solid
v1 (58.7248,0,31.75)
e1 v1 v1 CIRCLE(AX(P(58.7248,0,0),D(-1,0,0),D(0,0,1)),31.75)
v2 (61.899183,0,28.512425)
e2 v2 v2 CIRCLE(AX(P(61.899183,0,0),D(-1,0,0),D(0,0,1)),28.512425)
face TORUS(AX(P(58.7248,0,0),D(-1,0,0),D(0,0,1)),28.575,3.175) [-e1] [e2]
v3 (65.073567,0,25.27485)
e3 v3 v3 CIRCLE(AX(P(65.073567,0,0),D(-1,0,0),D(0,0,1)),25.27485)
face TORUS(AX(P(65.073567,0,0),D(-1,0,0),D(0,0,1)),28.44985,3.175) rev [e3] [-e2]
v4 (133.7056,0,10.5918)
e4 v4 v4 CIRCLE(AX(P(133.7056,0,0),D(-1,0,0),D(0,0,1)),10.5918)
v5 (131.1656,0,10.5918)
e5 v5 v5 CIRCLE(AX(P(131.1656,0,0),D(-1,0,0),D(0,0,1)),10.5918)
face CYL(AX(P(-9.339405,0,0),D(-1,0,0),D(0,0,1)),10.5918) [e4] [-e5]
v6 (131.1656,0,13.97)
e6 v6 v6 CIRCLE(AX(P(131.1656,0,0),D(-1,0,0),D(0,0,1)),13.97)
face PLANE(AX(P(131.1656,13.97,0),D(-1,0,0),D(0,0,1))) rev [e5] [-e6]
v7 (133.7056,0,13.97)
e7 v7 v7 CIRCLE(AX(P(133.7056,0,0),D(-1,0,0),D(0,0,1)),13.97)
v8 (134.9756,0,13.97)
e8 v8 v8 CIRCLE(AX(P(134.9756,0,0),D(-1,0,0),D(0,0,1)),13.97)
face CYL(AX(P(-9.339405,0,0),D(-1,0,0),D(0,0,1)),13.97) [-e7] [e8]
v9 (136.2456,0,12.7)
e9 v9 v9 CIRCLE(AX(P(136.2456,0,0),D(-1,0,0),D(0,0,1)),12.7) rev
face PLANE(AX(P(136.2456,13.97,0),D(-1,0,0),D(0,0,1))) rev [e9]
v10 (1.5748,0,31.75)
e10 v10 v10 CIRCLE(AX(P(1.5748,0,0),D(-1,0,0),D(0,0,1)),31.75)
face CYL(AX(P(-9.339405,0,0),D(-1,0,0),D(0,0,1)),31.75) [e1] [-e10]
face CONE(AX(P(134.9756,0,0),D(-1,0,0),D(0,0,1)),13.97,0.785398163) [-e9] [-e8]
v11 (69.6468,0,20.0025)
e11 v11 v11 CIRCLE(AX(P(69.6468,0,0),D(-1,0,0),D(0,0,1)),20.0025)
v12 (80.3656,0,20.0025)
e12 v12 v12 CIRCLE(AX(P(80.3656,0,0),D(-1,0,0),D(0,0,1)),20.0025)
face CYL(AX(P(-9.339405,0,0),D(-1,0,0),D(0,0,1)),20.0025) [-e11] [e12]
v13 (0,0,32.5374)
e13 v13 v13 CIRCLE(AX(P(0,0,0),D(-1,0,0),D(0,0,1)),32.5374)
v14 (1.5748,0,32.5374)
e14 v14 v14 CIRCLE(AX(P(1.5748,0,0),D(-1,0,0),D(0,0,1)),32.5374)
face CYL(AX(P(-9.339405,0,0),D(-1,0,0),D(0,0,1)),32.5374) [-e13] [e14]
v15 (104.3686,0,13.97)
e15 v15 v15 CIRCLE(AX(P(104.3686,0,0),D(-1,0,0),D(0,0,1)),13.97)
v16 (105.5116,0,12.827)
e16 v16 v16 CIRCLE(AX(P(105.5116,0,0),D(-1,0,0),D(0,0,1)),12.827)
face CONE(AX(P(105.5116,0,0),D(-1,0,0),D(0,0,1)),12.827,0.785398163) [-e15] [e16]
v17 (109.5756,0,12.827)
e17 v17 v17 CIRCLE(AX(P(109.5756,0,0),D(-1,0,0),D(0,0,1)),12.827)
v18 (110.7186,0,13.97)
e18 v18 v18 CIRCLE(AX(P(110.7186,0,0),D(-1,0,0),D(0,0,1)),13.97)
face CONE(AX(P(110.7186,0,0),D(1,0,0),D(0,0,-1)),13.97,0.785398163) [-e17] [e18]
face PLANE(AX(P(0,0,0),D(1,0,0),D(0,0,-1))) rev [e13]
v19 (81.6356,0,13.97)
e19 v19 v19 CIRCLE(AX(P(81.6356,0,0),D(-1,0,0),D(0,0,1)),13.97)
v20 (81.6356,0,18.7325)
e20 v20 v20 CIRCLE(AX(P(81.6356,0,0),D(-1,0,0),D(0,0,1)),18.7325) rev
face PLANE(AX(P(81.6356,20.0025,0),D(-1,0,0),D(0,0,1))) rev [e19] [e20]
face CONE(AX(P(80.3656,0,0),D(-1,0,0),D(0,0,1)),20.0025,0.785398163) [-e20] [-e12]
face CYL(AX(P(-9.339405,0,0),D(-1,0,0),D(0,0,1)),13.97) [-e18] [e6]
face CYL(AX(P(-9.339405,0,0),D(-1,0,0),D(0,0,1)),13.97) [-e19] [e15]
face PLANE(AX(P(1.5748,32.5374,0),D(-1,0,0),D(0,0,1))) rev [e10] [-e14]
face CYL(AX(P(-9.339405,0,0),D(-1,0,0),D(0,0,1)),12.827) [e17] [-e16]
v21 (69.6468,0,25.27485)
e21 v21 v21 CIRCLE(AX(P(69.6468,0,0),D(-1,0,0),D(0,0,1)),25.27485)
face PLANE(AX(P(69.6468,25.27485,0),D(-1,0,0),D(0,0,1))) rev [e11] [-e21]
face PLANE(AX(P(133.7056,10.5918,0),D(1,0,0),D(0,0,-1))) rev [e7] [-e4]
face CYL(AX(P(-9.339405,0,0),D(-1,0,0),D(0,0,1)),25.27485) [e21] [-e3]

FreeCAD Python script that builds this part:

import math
import FreeCAD as App
import Part
import Sketcher
Q = App.Units.Quantity


def edges_at(feature, points):
    """Names of the edges that pass closest to the given points."""
    edges = feature.Shape.Edges
    near = lambda p: min(range(len(edges)), key=lambda i: edges[i].distToShape(Part.Vertex(*p))[0])
    return sorted({f"Edge{near(p) + 1}" for p in points})

doc = App.newDocument("Part")
body = doc.addObject("PartDesign::Body", "Body")

sketch1 = body.newObject("Sketcher::SketchObject", "Sketch")
sketch1.AttachmentSupport = (doc.getObject("XY_Plane"), [""])
sketch1.MapMode = "FlatFace"
sketch1.addGeometry([
    Part.LineSegment(App.Vector(0, 32.5374, 0), App.Vector(0, 0, 0)),
    Part.LineSegment(App.Vector(0, 0, 0), App.Vector(136.2456, 0, 0)),
    Part.LineSegment(App.Vector(136.2456, 0, 0), App.Vector(136.2456, 13.97, 0)),
    Part.LineSegment(App.Vector(136.2456, 13.97, 0), App.Vector(133.7056, 13.97, 0)),
    Part.LineSegment(App.Vector(133.7056, 13.97, 0), App.Vector(133.7056, 10.5918, 0)),
    Part.LineSegment(App.Vector(133.7056, 10.5918, 0), App.Vector(131.1656, 10.5918, 0)),
    Part.LineSegment(App.Vector(131.1656, 10.5918, 0), App.Vector(131.1656, 13.97, 0)),
    Part.LineSegment(App.Vector(131.1656, 13.97, 0), App.Vector(110.7186, 13.97, 0)),
    Part.LineSegment(App.Vector(110.7186, 13.97, 0), App.Vector(109.5756, 12.827, 0)),
    Part.LineSegment(App.Vector(109.5756, 12.827, 0), App.Vector(105.5116, 12.827, 0)),
    Part.LineSegment(App.Vector(105.5116, 12.827, 0), App.Vector(104.3686, 13.97, 0)),
    Part.LineSegment(App.Vector(104.3686, 13.97, 0), App.Vector(81.6356, 13.97, 0)),
    Part.LineSegment(App.Vector(81.6356, 13.97, 0), App.Vector(81.6356, 20.0025, 0)),
    Part.LineSegment(App.Vector(81.6356, 20.0025, 0), App.Vector(69.6468, 20.0025, 0)),
    Part.LineSegment(App.Vector(69.6468, 20.0025, 0), App.Vector(69.6468, 25.27485, 0)),
    Part.LineSegment(App.Vector(69.6468, 25.27485, 0), App.Vector(65.073567, 25.27485, 0)),
    Part.ArcOfCircle(Part.Circle(App.Vector(65.073567, 28.44985, 0), App.Vector(0, 0, 1), 3.175), math.radians(178.870705), math.radians(270)),
    Part.ArcOfCircle(Part.Circle(App.Vector(58.7248, 28.575, 0), App.Vector(0, 0, 1), 3.175), math.radians(-1.129295), math.radians(90)),
    Part.LineSegment(App.Vector(58.7248, 31.75, 0), App.Vector(1.5748, 31.75, 0)),
    Part.LineSegment(App.Vector(1.5748, 31.75, 0), App.Vector(1.5748, 32.5374, 0)),
    Part.LineSegment(App.Vector(1.5748, 32.5374, 0), App.Vector(0, 32.5374, 0)),
], False)
sketch1.addConstraint([
    Sketcher.Constraint("Coincident", 0, 2, 1, 1),
    Sketcher.Constraint("Coincident", 1, 2, 2, 1),
    Sketcher.Constraint("Coincident", 2, 2, 3, 1),
    Sketcher.Constraint("Coincident", 3, 2, 4, 1),
    Sketcher.Constraint("Coincident", 4, 2, 5, 1),
    Sketcher.Constraint("Coincident", 5, 2, 6, 1),
    Sketcher.Constraint("Coincident", 6, 2, 7, 1),
    Sketcher.Constraint("Coincident", 7, 2, 8, 1),
    Sketcher.Constraint("Coincident", 8, 2, 9, 1),
    Sketcher.Constraint("Coincident", 9, 2, 10, 1),
    Sketcher.Constraint("Coincident", 10, 2, 11, 1),
    Sketcher.Constraint("Coincident", 11, 2, 12, 1),
    Sketcher.Constraint("Coincident", 12, 2, 13, 1),
    Sketcher.Constraint("Coincident", 13, 2, 14, 1),
    Sketcher.Constraint("Coincident", 14, 2, 15, 1),
    Sketcher.Constraint("Tangent", 15, 2, 16, 2),
    Sketcher.Constraint("Tangent", 16, 1, 17, 1),
    Sketcher.Constraint("Tangent", 17, 2, 18, 1),
    Sketcher.Constraint("Coincident", 18, 2, 19, 1),
    Sketcher.Constraint("Coincident", 19, 2, 20, 1),
    Sketcher.Constraint("Coincident", 20, 2, 0, 1),
    Sketcher.Constraint("Vertical", 0),
    Sketcher.Constraint("Horizontal", 1),
    Sketcher.Constraint("Vertical", 2),
    Sketcher.Constraint("Horizontal", 3),
    Sketcher.Constraint("Vertical", 4),
    Sketcher.Constraint("Horizontal", 5),
    Sketcher.Constraint("Vertical", 6),
    Sketcher.Constraint("Horizontal", 7),
    Sketcher.Constraint("Horizontal", 9),
    Sketcher.Constraint("Horizontal", 11),
    Sketcher.Constraint("Vertical", 12),
    Sketcher.Constraint("Horizontal", 13),
    Sketcher.Constraint("Vertical", 14),
    Sketcher.Constraint("Horizontal", 15),
    Sketcher.Constraint("Horizontal", 18),
    Sketcher.Constraint("Vertical", 19),
    Sketcher.Constraint("Horizontal", 20),
    Sketcher.Constraint("Coincident", 0, 2, -1, 1),
    Sketcher.Constraint("Equal", 16, 17),
    Sketcher.Constraint("Perpendicular", 8, 10),
    Sketcher.Constraint("Horizontal", 3, 2, 6, 2),
    Sketcher.Constraint("Horizontal", 7, 2, 10, 2),
    Sketcher.Constraint("Equal", 3, 5),
    Sketcher.Constraint("Equal", 8, 10),
    Sketcher.Constraint("DistanceX", 3, 2, 3, 1, Q("0.1 in")),
    Sketcher.Constraint("Radius", 16, Q("0.125 in")),
    Sketcher.Constraint("DistanceX", 9, 2, 9, 1, Q("0.16 in")),
    Sketcher.Constraint("DistanceX", 18, 2, 18, 1, Q("2.25 in")),
    Sketcher.Constraint("DistanceY", 2, 1, 2, 2, Q("0.55 in")),
    Sketcher.Constraint("DistanceX", 11, 2, 8, 2, Q("1.1 in")),
    Sketcher.Constraint("DistanceX", 1, 1, 1, 2, Q("5.364 in")),
    Sketcher.Constraint("DistanceX", 7, 2, 7, 1, Q("0.805 in")),
    Sketcher.Constraint("DistanceX", 11, 2, 11, 1, Q("0.895 in")),
    Sketcher.Constraint("DistanceX", 13, 2, 13, 1, Q("0.472 in")),
    Sketcher.Constraint("DistanceX", 20, 2, 20, 1, Q("0.062 in")),
    Sketcher.Constraint("DistanceY", 0, 2, 0, 1, Q("1.281 in")),
    Sketcher.Constraint("DistanceY", 4, 2, 4, 1, Q("0.133 in")),
    Sketcher.Constraint("DistanceY", 19, 1, 19, 2, Q("0.031 in")),
    Sketcher.Constraint("DistanceY", 12, 1, 12, 2, Q("0.2375 in")),
    Sketcher.Constraint("DistanceY", 14, 1, 14, 2, 5.27235),
])
revolution = body.newObject("PartDesign::Revolution", "Revolution")
revolution.Profile = sketch1
revolution.ReferenceAxis = (sketch1, ["H_Axis"])
revolution.Angle = 360
doc.recompute()

chamfer = body.newObject("PartDesign::Chamfer", "Chamfer")
chamfer.Base = (revolution, edges_at(revolution, [(81.636, -20.003, 0), (136.246, -13.97, 0)]))
chamfer.Size = Q("0.05 in")

doc.recompute()
